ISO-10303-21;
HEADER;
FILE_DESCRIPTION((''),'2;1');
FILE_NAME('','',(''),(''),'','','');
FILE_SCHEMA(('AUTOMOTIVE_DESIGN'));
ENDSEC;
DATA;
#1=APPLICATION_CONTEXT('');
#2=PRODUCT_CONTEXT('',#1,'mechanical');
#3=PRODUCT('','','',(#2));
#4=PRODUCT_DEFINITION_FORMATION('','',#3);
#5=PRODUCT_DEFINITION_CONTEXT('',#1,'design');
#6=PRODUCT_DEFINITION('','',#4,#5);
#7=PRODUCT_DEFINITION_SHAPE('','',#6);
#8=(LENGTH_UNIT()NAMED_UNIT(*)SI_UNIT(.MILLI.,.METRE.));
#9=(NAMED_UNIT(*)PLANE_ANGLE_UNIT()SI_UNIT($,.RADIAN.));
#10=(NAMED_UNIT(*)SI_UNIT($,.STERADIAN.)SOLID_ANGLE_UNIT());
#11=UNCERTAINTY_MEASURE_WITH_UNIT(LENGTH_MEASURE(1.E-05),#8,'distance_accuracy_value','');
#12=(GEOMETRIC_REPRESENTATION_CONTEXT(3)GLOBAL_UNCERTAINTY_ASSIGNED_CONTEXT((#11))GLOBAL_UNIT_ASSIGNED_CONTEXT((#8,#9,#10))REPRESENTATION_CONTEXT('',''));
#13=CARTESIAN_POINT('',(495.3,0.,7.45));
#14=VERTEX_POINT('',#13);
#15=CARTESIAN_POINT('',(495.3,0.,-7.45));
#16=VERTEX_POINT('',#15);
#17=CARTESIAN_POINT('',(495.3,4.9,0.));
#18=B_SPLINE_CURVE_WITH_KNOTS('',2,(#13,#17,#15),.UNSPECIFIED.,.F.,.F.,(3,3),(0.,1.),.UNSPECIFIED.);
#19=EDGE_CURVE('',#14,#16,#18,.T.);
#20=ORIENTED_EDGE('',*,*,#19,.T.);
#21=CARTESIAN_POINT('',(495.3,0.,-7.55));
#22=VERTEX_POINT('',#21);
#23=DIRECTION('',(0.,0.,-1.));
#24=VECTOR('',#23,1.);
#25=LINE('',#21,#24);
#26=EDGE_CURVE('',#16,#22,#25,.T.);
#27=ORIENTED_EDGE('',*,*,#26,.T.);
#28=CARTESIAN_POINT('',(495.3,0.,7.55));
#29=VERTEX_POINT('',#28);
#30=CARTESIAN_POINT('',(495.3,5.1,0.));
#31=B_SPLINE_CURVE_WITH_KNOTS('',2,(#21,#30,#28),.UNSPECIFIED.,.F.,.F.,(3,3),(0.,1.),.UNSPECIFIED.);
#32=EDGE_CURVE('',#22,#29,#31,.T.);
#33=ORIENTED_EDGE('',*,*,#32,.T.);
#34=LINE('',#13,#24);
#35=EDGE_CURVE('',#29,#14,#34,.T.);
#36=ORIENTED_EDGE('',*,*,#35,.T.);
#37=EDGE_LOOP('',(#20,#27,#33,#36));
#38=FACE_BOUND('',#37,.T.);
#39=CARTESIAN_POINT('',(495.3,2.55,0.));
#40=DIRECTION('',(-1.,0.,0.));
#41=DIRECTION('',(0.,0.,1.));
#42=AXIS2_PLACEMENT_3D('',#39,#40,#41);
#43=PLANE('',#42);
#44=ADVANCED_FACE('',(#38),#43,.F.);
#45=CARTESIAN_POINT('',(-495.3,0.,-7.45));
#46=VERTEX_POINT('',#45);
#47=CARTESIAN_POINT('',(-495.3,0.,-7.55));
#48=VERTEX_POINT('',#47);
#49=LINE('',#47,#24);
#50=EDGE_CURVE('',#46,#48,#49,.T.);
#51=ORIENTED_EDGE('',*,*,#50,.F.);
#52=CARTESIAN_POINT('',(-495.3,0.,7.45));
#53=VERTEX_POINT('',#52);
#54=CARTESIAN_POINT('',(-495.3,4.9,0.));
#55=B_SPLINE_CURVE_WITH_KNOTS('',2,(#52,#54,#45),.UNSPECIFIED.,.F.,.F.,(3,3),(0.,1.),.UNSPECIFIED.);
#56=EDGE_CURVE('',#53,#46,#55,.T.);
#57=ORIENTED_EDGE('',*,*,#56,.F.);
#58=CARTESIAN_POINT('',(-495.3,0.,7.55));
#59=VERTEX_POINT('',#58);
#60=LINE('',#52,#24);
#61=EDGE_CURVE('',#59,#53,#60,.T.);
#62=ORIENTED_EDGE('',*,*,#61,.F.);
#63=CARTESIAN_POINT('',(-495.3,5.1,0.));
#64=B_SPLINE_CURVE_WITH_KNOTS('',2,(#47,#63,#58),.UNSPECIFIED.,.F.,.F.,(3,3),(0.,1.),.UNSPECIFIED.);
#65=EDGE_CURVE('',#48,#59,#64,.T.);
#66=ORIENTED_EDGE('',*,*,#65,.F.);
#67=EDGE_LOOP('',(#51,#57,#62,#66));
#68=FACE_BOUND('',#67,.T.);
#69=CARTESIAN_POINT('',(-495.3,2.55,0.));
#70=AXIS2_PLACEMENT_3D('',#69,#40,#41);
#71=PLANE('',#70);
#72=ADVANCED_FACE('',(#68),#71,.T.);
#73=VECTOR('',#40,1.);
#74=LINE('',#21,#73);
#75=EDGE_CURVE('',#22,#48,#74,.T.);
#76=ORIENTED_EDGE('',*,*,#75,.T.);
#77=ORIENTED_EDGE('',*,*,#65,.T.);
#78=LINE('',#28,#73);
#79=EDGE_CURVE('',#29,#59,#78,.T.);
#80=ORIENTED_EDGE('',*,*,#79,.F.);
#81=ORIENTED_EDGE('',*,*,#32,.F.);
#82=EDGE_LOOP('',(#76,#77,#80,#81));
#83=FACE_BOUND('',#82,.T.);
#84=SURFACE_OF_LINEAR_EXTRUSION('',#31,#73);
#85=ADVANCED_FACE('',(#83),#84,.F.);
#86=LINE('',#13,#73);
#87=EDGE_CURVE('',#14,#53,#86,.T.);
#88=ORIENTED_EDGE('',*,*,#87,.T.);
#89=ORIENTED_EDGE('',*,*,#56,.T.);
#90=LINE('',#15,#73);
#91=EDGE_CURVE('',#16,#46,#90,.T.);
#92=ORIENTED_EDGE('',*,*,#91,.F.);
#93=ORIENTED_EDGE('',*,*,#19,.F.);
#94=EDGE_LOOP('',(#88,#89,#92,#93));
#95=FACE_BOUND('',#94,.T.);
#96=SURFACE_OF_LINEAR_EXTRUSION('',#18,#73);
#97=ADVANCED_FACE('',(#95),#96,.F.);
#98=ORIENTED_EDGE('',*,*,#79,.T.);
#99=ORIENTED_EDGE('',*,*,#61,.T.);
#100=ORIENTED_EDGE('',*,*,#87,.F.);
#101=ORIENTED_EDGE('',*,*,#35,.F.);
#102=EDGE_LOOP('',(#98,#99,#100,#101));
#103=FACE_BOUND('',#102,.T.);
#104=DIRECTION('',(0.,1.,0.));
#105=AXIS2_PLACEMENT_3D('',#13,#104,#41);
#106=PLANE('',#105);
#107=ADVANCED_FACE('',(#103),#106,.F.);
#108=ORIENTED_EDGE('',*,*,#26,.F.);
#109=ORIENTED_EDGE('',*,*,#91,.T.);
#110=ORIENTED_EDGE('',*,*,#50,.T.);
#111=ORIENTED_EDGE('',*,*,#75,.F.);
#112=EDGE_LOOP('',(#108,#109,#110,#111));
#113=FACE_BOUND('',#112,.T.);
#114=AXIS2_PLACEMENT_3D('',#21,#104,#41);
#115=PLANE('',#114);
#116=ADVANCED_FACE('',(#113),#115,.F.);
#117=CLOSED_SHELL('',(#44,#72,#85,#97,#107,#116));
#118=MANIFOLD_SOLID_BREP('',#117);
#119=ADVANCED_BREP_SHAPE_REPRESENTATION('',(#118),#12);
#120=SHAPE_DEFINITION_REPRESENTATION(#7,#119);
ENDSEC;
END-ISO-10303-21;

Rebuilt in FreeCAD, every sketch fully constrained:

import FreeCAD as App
import Part
import Sketcher

V = App.Vector

doc = App.newDocument("Part")
body = doc.addObject("PartDesign::Body", "Body")

# Sketch on YZ plane
sketch1 = body.newObject("Sketcher::SketchObject", "Sketch")
sketch1.AttachmentSupport = (doc.getObject("YZ_Plane"), [""])
sketch1.MapMode = "FlatFace"
sketch1.addGeometry(Part.LineSegment(V(0, -7.45, 0), V(0, -7.55, 0)), False)
sketch1.addGeometry(Part.BSplineCurve([V(0, -7.55, 0), V(5.1, 0, 0), V(0, 7.55, 0)], [3, 3], [0, 1], False, 2, [1, 1, 1], False), False)
sketch1.addGeometry(Part.LineSegment(V(0, 7.55, 0), V(0, 7.45, 0)), False)
sketch1.addGeometry(Part.BSplineCurve([V(0, 7.45, 0), V(4.9, 0, 0), V(0, -7.45, 0)], [3, 3], [0, 1], False, 2, [1, 1, 1], False), False)
sketch1.addConstraint(Sketcher.Constraint("Block", 1))
sketch1.addConstraint(Sketcher.Constraint("Block", 3))
sketch1.addConstraint(Sketcher.Constraint("Coincident", 0, 2, 1, 1))
sketch1.addConstraint(Sketcher.Constraint("Coincident", 1, 2, 2, 1))
sketch1.addConstraint(Sketcher.Constraint("Coincident", 2, 2, 3, 1))
sketch1.addConstraint(Sketcher.Constraint("Coincident", 3, 2, 0, 1))
pad1 = body.newObject("PartDesign::Pad", "Pad")
pad1.Profile = sketch1
pad1.Length = 990.6
pad1.Midplane = True

doc.recompute()
